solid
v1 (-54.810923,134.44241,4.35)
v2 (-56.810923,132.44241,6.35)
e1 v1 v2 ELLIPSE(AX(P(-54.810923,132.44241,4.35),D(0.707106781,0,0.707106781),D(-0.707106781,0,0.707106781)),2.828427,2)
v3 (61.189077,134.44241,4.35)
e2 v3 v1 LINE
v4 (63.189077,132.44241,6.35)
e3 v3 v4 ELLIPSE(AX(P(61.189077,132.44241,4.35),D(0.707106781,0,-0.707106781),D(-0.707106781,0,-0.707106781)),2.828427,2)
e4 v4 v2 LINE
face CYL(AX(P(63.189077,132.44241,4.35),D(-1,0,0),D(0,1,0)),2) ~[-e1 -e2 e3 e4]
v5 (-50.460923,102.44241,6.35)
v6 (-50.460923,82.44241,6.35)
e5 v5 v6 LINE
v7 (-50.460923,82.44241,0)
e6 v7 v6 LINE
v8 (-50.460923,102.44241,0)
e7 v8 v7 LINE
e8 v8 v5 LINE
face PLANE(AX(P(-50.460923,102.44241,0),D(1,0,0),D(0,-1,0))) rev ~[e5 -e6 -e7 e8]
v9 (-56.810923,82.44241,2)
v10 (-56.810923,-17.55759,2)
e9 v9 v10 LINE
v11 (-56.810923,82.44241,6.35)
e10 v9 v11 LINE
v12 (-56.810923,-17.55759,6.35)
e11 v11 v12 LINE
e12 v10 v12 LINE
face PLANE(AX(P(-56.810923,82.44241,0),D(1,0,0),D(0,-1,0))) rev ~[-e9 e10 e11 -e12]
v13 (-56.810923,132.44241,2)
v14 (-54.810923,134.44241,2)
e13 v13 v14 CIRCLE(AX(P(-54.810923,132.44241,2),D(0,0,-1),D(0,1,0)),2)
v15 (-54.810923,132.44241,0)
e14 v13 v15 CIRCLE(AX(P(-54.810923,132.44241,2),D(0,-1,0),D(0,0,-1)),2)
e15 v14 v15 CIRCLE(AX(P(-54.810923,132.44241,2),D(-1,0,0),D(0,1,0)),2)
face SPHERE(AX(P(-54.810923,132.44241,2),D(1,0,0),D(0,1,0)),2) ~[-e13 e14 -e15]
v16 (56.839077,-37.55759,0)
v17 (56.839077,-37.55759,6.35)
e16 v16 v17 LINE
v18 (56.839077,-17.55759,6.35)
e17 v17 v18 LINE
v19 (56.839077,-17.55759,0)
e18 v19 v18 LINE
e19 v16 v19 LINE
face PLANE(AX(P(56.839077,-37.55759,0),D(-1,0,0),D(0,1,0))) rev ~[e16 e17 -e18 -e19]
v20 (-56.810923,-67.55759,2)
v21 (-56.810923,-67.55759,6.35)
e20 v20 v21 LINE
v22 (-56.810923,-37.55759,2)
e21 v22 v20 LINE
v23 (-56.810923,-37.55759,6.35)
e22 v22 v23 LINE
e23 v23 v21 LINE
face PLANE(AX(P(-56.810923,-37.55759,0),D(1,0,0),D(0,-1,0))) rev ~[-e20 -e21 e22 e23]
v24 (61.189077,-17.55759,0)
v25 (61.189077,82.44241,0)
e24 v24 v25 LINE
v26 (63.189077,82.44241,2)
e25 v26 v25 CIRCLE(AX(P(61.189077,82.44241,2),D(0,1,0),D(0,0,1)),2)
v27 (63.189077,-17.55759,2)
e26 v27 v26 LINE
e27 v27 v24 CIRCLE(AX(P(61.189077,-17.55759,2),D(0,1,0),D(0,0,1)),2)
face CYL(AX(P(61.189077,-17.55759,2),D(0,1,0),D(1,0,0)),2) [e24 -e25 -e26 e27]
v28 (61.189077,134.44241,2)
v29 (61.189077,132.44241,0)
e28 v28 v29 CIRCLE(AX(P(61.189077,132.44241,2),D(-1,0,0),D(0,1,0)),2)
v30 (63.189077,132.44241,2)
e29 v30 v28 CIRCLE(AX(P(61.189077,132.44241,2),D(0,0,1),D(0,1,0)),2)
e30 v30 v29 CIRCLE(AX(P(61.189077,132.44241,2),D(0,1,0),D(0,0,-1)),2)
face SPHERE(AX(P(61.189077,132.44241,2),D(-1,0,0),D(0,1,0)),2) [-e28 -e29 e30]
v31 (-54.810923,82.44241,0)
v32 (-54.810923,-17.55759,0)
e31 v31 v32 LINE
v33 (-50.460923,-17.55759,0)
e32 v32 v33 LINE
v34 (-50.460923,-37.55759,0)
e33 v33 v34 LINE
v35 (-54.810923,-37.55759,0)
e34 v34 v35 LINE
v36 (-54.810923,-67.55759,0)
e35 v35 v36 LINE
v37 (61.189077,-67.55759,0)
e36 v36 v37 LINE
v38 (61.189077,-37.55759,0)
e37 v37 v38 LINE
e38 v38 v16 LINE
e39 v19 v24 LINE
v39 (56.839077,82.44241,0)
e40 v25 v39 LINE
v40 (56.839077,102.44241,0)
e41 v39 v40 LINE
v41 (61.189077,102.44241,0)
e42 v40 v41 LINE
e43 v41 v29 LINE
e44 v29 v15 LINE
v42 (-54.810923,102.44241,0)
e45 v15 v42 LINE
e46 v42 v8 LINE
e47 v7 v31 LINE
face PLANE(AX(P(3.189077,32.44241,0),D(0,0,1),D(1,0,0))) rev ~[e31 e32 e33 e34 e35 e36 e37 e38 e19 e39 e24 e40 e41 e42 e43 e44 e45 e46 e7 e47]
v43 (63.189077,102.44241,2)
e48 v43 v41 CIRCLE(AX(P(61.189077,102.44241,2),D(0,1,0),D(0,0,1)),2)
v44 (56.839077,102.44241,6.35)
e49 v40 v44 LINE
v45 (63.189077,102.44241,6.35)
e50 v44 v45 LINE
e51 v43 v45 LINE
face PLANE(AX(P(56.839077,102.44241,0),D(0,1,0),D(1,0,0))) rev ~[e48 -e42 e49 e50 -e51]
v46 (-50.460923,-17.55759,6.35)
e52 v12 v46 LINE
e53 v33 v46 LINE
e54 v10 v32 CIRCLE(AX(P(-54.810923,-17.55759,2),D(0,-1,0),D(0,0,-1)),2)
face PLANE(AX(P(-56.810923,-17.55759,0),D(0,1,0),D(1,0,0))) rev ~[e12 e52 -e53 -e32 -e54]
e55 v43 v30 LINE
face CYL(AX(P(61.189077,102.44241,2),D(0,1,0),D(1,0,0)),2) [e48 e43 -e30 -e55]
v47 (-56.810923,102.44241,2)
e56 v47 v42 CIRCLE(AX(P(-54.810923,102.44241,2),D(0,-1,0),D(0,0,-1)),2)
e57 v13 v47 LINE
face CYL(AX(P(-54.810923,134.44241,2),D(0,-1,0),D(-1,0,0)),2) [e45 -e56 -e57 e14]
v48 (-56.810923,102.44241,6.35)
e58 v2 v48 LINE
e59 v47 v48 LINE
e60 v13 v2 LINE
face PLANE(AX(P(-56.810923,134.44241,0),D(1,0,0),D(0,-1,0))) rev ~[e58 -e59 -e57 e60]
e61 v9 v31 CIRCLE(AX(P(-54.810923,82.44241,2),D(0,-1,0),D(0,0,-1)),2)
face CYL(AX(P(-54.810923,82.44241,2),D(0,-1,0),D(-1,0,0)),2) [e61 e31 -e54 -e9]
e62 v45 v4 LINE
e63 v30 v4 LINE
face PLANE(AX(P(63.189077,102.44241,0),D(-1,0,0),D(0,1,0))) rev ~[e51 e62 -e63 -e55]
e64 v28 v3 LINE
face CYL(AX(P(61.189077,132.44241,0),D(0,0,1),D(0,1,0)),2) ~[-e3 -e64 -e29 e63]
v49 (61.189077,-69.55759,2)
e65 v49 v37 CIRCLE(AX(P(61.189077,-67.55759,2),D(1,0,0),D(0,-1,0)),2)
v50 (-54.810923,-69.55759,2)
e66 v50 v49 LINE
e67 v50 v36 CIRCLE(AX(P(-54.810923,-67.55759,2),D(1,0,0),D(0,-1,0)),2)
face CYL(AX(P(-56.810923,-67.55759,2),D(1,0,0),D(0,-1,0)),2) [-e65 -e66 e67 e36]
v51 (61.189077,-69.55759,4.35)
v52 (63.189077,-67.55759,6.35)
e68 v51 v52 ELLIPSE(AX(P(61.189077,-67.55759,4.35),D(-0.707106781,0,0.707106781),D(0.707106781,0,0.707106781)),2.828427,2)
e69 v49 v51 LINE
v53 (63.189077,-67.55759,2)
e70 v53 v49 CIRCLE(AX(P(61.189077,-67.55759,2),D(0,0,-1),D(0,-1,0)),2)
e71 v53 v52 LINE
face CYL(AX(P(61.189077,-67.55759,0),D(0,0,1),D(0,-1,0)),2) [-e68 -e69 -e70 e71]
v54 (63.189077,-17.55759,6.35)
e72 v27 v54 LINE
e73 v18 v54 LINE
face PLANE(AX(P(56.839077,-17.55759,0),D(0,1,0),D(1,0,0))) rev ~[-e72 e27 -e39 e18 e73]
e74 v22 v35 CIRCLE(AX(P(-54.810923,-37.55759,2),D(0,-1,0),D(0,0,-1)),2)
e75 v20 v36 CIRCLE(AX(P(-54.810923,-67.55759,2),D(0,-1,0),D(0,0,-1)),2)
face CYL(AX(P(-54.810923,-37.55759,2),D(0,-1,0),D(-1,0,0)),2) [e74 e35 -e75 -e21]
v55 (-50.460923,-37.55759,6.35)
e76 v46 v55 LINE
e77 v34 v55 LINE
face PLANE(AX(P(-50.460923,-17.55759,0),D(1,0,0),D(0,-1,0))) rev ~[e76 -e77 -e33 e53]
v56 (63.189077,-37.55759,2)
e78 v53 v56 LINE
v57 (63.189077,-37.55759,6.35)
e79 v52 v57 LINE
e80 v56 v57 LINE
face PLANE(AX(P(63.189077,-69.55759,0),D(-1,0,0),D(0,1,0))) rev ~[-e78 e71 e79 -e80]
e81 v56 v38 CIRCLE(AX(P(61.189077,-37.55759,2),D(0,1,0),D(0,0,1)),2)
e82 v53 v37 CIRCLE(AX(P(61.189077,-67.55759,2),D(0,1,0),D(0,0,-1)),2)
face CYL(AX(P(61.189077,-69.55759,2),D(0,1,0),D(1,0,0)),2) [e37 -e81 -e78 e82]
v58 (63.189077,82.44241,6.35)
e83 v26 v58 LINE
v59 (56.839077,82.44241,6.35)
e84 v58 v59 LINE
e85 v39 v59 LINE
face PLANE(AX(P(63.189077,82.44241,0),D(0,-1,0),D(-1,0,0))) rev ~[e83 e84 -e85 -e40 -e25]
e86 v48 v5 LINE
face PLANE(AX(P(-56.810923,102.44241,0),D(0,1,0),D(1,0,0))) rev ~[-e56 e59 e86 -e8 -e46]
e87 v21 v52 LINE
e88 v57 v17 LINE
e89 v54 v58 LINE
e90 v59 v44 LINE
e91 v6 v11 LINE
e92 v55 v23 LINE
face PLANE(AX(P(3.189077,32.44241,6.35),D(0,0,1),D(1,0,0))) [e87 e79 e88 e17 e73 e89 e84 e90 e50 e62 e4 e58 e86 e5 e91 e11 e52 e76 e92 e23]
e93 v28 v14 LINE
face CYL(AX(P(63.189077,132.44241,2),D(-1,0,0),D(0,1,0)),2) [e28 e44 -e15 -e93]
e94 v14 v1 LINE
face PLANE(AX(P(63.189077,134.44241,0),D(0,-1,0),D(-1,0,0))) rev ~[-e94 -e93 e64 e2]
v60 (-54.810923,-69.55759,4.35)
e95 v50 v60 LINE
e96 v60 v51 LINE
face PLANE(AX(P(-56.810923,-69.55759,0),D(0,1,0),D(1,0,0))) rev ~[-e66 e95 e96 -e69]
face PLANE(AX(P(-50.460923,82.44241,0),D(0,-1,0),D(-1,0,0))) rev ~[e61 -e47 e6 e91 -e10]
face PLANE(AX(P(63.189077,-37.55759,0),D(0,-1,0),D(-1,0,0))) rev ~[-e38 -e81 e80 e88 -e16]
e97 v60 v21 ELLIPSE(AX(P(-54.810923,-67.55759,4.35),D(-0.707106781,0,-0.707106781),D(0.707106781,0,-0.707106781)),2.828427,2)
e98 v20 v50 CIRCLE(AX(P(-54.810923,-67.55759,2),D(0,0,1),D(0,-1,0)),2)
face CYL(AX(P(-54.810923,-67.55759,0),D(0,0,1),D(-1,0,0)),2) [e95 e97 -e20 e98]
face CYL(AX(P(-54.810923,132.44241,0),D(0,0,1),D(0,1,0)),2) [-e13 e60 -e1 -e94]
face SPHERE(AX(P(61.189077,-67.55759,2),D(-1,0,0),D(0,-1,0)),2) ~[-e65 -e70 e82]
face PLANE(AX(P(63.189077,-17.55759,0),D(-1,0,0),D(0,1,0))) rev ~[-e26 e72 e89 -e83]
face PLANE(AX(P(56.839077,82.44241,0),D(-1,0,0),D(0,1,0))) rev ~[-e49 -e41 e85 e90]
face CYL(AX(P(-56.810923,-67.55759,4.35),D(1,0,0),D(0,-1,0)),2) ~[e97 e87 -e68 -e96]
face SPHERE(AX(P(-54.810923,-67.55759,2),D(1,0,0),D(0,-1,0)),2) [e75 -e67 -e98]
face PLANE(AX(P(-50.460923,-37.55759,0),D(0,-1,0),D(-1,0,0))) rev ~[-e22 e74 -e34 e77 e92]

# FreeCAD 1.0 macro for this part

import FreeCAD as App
import Part
import Sketcher
from FreeCAD import Vector
Q = App.Units.Quantity


def edges_at(feature, points):
    """Names of the edges that pass closest to the given points."""
    edges = feature.Shape.Edges
    near = lambda p: min(range(len(edges)), key=lambda i: edges[i].distToShape(Part.Vertex(*p))[0])
    return sorted({f"Edge{near(p) + 1}" for p in points})


def add_polygon(sketch, points):
    """Adds a closed chain of lines whose ends are joined by coincident constraints."""
    first, n = sketch.GeometryCount, len(points)
    for a, b in zip(points, points[1:] + points[:1]):
        sketch.addGeometry(Part.LineSegment(App.Vector(*a, 0), App.Vector(*b, 0)), False)
    for i in range(n):
        sketch.addConstraint(Sketcher.Constraint("Coincident", first + i, 2, first + (i + 1) % n, 1))

doc = App.newDocument("Part")
body = doc.addObject("PartDesign::Body", "Body")

# Sketch on XY plane
sketch1 = body.newObject("Sketcher::SketchObject", "Sketch")
sketch1.AttachmentSupport = (doc.getObject("XY_Plane"), [""])
sketch1.MapMode = "FlatFace"
add_polygon(sketch1, [(63.189077, 134.44241), (-56.810923, 134.44241), (-56.810923, 102.44241), (-50.460923, 102.44241), (-50.460923, 82.44241), (-56.810923, 82.44241), (-56.810923, -17.55759), (-50.460923, -17.55759), (-50.460923, -37.55759), (-56.810923, -37.55759), (-56.810923, -69.55759), (63.189077, -69.55759), (63.189077, -37.55759), (56.839077, -37.55759), (56.839077, -17.55759), (63.189077, -17.55759), (63.189077, 82.44241), (56.839077, 82.44241), (56.839077, 102.44241), (63.189077, 102.44241)])  # lines 0-19
sketch1.addConstraint(Sketcher.Constraint("Horizontal", 0))
sketch1.addConstraint(Sketcher.Constraint("Vertical", 1))
sketch1.addConstraint(Sketcher.Constraint("Horizontal", 2))
sketch1.addConstraint(Sketcher.Constraint("Vertical", 3))
sketch1.addConstraint(Sketcher.Constraint("Horizontal", 4))
sketch1.addConstraint(Sketcher.Constraint("Vertical", 5))
sketch1.addConstraint(Sketcher.Constraint("Horizontal", 6))
sketch1.addConstraint(Sketcher.Constraint("Vertical", 7))
sketch1.addConstraint(Sketcher.Constraint("Horizontal", 8))
sketch1.addConstraint(Sketcher.Constraint("Vertical", 9))
sketch1.addConstraint(Sketcher.Constraint("Horizontal", 10))
sketch1.addConstraint(Sketcher.Constraint("Vertical", 11))
sketch1.addConstraint(Sketcher.Constraint("Horizontal", 12))
sketch1.addConstraint(Sketcher.Constraint("Vertical", 13))
sketch1.addConstraint(Sketcher.Constraint("Horizontal", 14))
sketch1.addConstraint(Sketcher.Constraint("Vertical", 15))
sketch1.addConstraint(Sketcher.Constraint("Horizontal", 16))
sketch1.addConstraint(Sketcher.Constraint("Vertical", 17))
sketch1.addConstraint(Sketcher.Constraint("Horizontal", 18))
sketch1.addConstraint(Sketcher.Constraint("Vertical", 19))
sketch1.addConstraint(Sketcher.Constraint("Horizontal", 8, 2, 11, 2))
sketch1.addConstraint(Sketcher.Constraint("Horizontal", 6, 2, 13, 2))
sketch1.addConstraint(Sketcher.Constraint("Horizontal", 4, 2, 15, 2))
sketch1.addConstraint(Sketcher.Constraint("Horizontal", 2, 2, 17, 2))
sketch1.addConstraint(Sketcher.Constraint("Vertical", 1, 2, 4, 2))
sketch1.addConstraint(Sketcher.Constraint("Vertical", 3, 2, 6, 2))
sketch1.addConstraint(Sketcher.Constraint("Vertical", 5, 2, 8, 2))
sketch1.addConstraint(Sketcher.Constraint("Vertical", 11, 2, 14, 2))
sketch1.addConstraint(Sketcher.Constraint("Vertical", 13, 2, 16, 2))
sketch1.addConstraint(Sketcher.Constraint("Vertical", 15, 2, 18, 2))
sketch1.addConstraint(Sketcher.Constraint("Equal", 8, 12))
sketch1.addConstraint(Sketcher.Constraint("Equal", 3, 7))
sketch1.addConstraint(Sketcher.Constraint("Equal", 1, 9))
sketch1.addConstraint(Sketcher.Constraint("DistanceX", 0, 2, 0, 1, Q("120 mm")))
sketch1.addConstraint(Sketcher.Constraint("DistanceY", 1, 2, 1, 1, Q("32 mm")))
sketch1.addConstraint(Sketcher.Constraint("DistanceY", 3, 2, 3, 1, Q("20 mm")))
sketch1.addConstraint(Sketcher.Constraint("DistanceY", 5, 2, 5, 1, Q("100 mm")))
sketch1.addConstraint(Sketcher.Constraint("DistanceX", 2, 1, 2, 2, Q("6.35 mm")))
sketch1.addConstraint(Sketcher.Constraint("DistanceY", -1, 1, 0, 2, Q("134.44241 mm")))
sketch1.addConstraint(Sketcher.Constraint("DistanceX", 0, 2, -1, 1, Q("56.810923 mm")))
pad1 = body.newObject("PartDesign::Pad", "Pad")
pad1.Profile = sketch1
pad1.Length = 6.35
doc.recompute()

fillet = body.newObject("PartDesign::Fillet", "Fillet")
fillet.Base = (pad1, edges_at(pad1, [
    (3.189, -69.558, 6.35),
    (3.189, -69.558, 0),
    (3.189, 134.442, 6.35),
    (3.189, 134.442, 0),
    (63.189, 134.442, 3.175),
    (-56.811, 134.442, 3.175),
    (63.189, -69.558, 3.175),
    (-56.811, -69.558, 3.175),
    (63.189, 32.442, 0),
    (63.189, 118.442, 0),
    (63.189, -53.558, 0),
    (-56.811, -53.558, 0),
    (-56.811, 32.442, 0),
    (-56.811, 118.442, 0),
]))
fillet.Radius = 2

doc.recompute()
